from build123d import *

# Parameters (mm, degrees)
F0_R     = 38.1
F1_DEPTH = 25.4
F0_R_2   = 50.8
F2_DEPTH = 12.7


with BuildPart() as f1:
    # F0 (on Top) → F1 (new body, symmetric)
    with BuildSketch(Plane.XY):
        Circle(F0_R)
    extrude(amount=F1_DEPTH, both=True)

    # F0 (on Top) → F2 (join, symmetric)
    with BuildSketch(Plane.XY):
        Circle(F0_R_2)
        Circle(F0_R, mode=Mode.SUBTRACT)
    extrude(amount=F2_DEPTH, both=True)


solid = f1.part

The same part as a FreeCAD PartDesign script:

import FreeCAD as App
import Part
import Sketcher
from FreeCAD import Vector
Q = App.Units.Quantity

doc = App.newDocument("Part")
params = doc.addObject("Spreadsheet::Sheet", "Params")
for row, (alias, value) in enumerate([
    ("sketch1_diameter", "3 in"),
    ("pad1_length", "2 in"),
    ("sketch2_diameter", "4 in"),
    ("sketch2_diameter2", "3 in"),
    ("pad2_length", "1 in"),
], start=1):
    params.set(f"A{row}", alias)
    params.set(f"B{row}", "=" + value)
    params.setAlias(f"B{row}", alias)

body = doc.addObject("PartDesign::Body", "Body")

# Sketch on XY plane
sketch1 = body.newObject("Sketcher::SketchObject", "Sketch")
sketch1.AttachmentSupport = (doc.getObject("XY_Plane"), [""])
sketch1.MapMode = "FlatFace"
sketch1.addGeometry(Part.Circle(Vector(0, 0, 0), Vector(0, 0, 1), 38), False)
sketch1.addConstraint([
    Sketcher.Constraint("Coincident", 0, 3, -1, 1),
    Sketcher.Constraint("Diameter", 0, Q("3 in")),
])
sketch1.setExpression("Constraints[1]", "Params.sketch1_diameter")
pad1 = body.newObject("PartDesign::Pad", "Pad")
pad1.Profile = sketch1
pad1.setExpression("Length", "Params.pad1_length")
pad1.Midplane = True

# Sketch on XY plane
sketch2 = body.newObject("Sketcher::SketchObject", "Sketch001")
sketch2.AttachmentSupport = (doc.getObject("XY_Plane"), [""])
sketch2.MapMode = "FlatFace"
sketch2.addGeometry([
    Part.Circle(Vector(0, 0, 0), Vector(0, 0, 1), 51),
    Part.Circle(Vector(0, 0, 0), Vector(0, 0, 1), 38),
], False)
sketch2.addConstraint([
    Sketcher.Constraint("Coincident", 0, 3, -1, 1),
    Sketcher.Constraint("Coincident", 1, 3, -1, 1),
    Sketcher.Constraint("Diameter", 0, Q("4 in")),
    Sketcher.Constraint("Diameter", 1, Q("3 in")),
])
sketch2.setExpression("Constraints[2]", "Params.sketch2_diameter")
sketch2.setExpression("Constraints[3]", "Params.sketch2_diameter2")
pad2 = body.newObject("PartDesign::Pad", "Pad001")
pad2.Profile = sketch2
pad2.setExpression("Length", "Params.pad2_length")
pad2.Midplane = True

doc.recompute()
